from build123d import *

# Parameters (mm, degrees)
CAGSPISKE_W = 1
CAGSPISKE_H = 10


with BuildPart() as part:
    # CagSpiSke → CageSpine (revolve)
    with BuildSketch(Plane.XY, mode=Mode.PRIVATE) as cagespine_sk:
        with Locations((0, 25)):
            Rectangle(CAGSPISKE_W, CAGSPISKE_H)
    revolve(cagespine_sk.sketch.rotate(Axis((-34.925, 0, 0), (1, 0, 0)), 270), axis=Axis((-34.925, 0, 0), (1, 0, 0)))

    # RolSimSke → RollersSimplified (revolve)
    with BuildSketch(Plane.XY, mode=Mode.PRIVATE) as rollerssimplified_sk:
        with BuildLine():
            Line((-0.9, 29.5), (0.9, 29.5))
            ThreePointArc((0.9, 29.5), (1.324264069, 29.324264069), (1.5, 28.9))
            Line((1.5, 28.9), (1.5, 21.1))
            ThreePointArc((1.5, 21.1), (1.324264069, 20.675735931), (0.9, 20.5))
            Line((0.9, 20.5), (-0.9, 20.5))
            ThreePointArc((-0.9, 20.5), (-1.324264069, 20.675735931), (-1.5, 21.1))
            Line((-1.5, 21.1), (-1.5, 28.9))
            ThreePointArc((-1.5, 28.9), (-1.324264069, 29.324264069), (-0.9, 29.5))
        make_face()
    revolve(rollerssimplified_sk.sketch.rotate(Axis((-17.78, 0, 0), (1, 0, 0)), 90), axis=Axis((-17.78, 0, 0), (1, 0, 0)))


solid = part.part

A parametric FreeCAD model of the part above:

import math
import FreeCAD as App
import Part
import Sketcher
from FreeCAD import Vector
Q = App.Units.Quantity

doc = App.newDocument("Part")
body = doc.addObject("PartDesign::Body", "Body")

# Sketch on XY plane
sketch1 = body.newObject("Sketcher::SketchObject", "Sketch")
sketch1.AttachmentSupport = (doc.getObject("XY_Plane"), [""])
sketch1.MapMode = "FlatFace"
sketch1.addGeometry(Part.LineSegment(Vector(-0.5, 30, 0), Vector(-0.5, 20, 0)), False)
sketch1.addGeometry(Part.LineSegment(Vector(-0.5, 20, 0), Vector(0.5, 20, 0)), False)
sketch1.addGeometry(Part.LineSegment(Vector(0.5, 20, 0), Vector(0.5, 30, 0)), False)
sketch1.addGeometry(Part.LineSegment(Vector(0.5, 30, 0), Vector(-0.5, 30, 0)), False)
sketch1.addConstraint(Sketcher.Constraint("Coincident", 0, 2, 1, 1))
sketch1.addConstraint(Sketcher.Constraint("Coincident", 1, 2, 2, 1))
sketch1.addConstraint(Sketcher.Constraint("Coincident", 2, 2, 3, 1))
sketch1.addConstraint(Sketcher.Constraint("Coincident", 3, 2, 0, 1))
sketch1.addConstraint(Sketcher.Constraint("Vertical", 0))
sketch1.addConstraint(Sketcher.Constraint("Horizontal", 1))
sketch1.addConstraint(Sketcher.Constraint("Vertical", 2))
sketch1.addConstraint(Sketcher.Constraint("Horizontal", 3))
sketch1.addConstraint(Sketcher.Constraint("DistanceX", 1, 1, 1, 2, Q("1 mm")))
sketch1.addConstraint(Sketcher.Constraint("DistanceY", 0, 2, 0, 1, Q("10 mm")))
sketch1.addConstraint(Sketcher.Constraint("DistanceY", -1, 1, 0, 2, Q("20 mm")))
sketch1.addConstraint(Sketcher.Constraint("DistanceX", 0, 2, -1, 1, Q("0.5 mm")))
revolution = body.newObject("PartDesign::Revolution", "Revolution")
revolution.Profile = sketch1
revolution.ReferenceAxis = (sketch1, ["H_Axis"])
revolution.Angle = 360

# Sketch on XY plane
sketch2 = body.newObject("Sketcher::SketchObject", "Sketch001")
sketch2.AttachmentSupport = (doc.getObject("XY_Plane"), [""])
sketch2.MapMode = "FlatFace"
sketch2.addGeometry(Part.LineSegment(Vector(0.9, 29.5, 0), Vector(-0.9, 29.5, 0)), False)
sketch2.addGeometry(Part.ArcOfCircle(Part.Circle(Vector(-0.9, 28.9, 0), Vector(0, 0, 1), 0.6), math.radians(90), math.radians(180)), False)
sketch2.addGeometry(Part.LineSegment(Vector(-1.5, 28.9, 0), Vector(-1.5, 21.1, 0)), False)
sketch2.addGeometry(Part.ArcOfCircle(Part.Circle(Vector(-0.9, 21.1, 0), Vector(0, 0, 1), 0.6), math.radians(180), math.radians(270)), False)
sketch2.addGeometry(Part.LineSegment(Vector(-0.9, 20.5, 0), Vector(0.9, 20.5, 0)), False)
sketch2.addGeometry(Part.ArcOfCircle(Part.Circle(Vector(0.9, 21.1, 0), Vector(0, 0, 1), 0.6), math.radians(-90), math.radians(0)), False)
sketch2.addGeometry(Part.LineSegment(Vector(1.5, 21.1, 0), Vector(1.5, 28.9, 0)), False)
sketch2.addGeometry(Part.ArcOfCircle(Part.Circle(Vector(0.9, 28.9, 0), Vector(0, 0, 1), 0.6), math.radians(0), math.radians(90)), False)
sketch2.addConstraint(Sketcher.Constraint("Tangent", 0, 2, 1, 1))
sketch2.addConstraint(Sketcher.Constraint("Tangent", 1, 2, 2, 1))
sketch2.addConstraint(Sketcher.Constraint("Tangent", 2, 2, 3, 1))
sketch2.addConstraint(Sketcher.Constraint("Tangent", 3, 2, 4, 1))
sketch2.addConstraint(Sketcher.Constraint("Tangent", 4, 2, 5, 1))
sketch2.addConstraint(Sketcher.Constraint("Tangent", 5, 2, 6, 1))
sketch2.addConstraint(Sketcher.Constraint("Tangent", 6, 2, 7, 1))
sketch2.addConstraint(Sketcher.Constraint("Tangent", 7, 2, 0, 1))
sketch2.addConstraint(Sketcher.Constraint("Horizontal", 0))
sketch2.addConstraint(Sketcher.Constraint("Vertical", 2))
sketch2.addConstraint(Sketcher.Constraint("Horizontal", 4))
sketch2.addConstraint(Sketcher.Constraint("Vertical", 6))
sketch2.addConstraint(Sketcher.Constraint("Equal", 1, 3))
sketch2.addConstraint(Sketcher.Constraint("Equal", 3, 5))
sketch2.addConstraint(Sketcher.Constraint("Equal", 5, 7))
sketch2.addConstraint(Sketcher.Constraint("Radius", 1, Q("0.6 mm")))
sketch2.addConstraint(Sketcher.Constraint("DistanceX", 0, 2, 0, 1, Q("1.8 mm")))
sketch2.addConstraint(Sketcher.Constraint("DistanceY", 2, 2, 2, 1, Q("7.8 mm")))
sketch2.addConstraint(Sketcher.Constraint("DistanceX", 1, 3, -1, 1, Q("0.9 mm")))
sketch2.addConstraint(Sketcher.Constraint("DistanceY", -1, 1, 1, 3, Q("28.9 mm")))
revolution2 = body.newObject("PartDesign::Revolution", "Revolution001")
revolution2.Profile = sketch2
revolution2.ReferenceAxis = (sketch2, ["H_Axis"])
revolution2.Angle = 360

doc.recompute()
